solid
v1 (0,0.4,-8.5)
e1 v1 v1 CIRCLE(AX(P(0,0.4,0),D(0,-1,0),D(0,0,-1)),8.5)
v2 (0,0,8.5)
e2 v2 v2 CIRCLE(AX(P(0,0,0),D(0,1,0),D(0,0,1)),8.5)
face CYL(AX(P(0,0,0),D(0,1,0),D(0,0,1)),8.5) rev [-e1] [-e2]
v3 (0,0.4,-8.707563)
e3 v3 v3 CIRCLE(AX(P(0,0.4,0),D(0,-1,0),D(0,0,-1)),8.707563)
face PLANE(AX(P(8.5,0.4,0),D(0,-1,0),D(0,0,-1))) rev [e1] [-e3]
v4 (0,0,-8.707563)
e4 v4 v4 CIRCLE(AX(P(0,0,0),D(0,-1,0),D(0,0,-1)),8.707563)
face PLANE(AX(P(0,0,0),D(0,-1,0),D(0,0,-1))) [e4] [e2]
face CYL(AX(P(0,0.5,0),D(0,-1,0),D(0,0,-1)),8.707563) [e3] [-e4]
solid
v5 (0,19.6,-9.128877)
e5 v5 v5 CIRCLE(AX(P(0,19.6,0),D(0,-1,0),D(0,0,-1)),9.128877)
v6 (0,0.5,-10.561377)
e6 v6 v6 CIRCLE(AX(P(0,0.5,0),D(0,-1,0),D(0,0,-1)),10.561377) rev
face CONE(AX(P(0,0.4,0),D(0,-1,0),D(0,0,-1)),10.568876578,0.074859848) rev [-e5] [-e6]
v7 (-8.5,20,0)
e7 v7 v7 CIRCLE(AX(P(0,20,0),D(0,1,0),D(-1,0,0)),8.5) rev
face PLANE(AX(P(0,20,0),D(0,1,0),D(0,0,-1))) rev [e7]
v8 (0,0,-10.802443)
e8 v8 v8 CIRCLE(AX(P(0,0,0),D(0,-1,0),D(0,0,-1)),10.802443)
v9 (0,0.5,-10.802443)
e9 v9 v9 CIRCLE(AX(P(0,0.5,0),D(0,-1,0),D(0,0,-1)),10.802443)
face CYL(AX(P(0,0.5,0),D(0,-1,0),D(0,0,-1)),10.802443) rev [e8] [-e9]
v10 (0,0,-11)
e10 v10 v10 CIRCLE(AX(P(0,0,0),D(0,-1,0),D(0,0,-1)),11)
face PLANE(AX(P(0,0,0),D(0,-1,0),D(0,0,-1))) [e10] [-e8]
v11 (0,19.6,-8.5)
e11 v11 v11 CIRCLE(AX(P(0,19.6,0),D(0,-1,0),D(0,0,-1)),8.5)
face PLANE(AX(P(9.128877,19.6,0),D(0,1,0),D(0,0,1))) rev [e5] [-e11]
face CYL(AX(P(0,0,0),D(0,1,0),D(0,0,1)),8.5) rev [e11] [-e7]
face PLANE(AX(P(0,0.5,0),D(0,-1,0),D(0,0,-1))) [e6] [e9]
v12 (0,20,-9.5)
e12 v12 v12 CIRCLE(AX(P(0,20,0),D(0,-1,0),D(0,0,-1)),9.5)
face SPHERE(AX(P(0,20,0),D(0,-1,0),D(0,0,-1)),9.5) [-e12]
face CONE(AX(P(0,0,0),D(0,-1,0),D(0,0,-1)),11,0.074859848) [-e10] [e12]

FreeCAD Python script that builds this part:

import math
import FreeCAD as App
import Part
import Sketcher
from FreeCAD import Vector

doc = App.newDocument("Part")
params = doc.addObject("Spreadsheet::Sheet", "Params")
for row, (alias, value) in enumerate([
    ("sketch1_width", "11 mm"),
    ("sketch1_height", "20 mm"),
    ("sketch1_width2", "9.5 mm"),
    ("revolution_angle", "360 deg"),
    ("sketch2_diameter", "17 mm"),
    ("pocket1_length", "20 mm"),
    ("sketch3_height", "19.2 mm"),
    ("groove_angle", "360 deg"),
    ("pocket2_length", "0.5 mm"),
    ("sketch5_radius", "9.5 mm"),
    ("revolution2_angle", "180 deg"),
], start=1):
    params.set(f"A{row}", alias)
    params.set(f"B{row}", "=" + value)
    params.setAlias(f"B{row}", alias)

body = doc.addObject("PartDesign::Body", "Body")
body.AllowCompound = True

sketch1 = body.newObject("Sketcher::SketchObject", "Sketch")
sketch1.AttachmentSupport = (doc.getObject("XY_Plane"), [""])
sketch1.MapMode = "FlatFace"
sketch1.addGeometry([
    Part.LineSegment(Vector(0, 0, 0), Vector(11, 0, 0)),
    Part.LineSegment(Vector(11, 0, 0), Vector(10, 20, 0)),
    Part.LineSegment(Vector(10, 20, 0), Vector(0, 20, 0)),
    Part.LineSegment(Vector(0, 20, 0), Vector(0, 0, 0)),
], False)
sketch1.addConstraint([
    Sketcher.Constraint("Coincident", 0, 2, 1, 1),
    Sketcher.Constraint("Coincident", 1, 2, 2, 1),
    Sketcher.Constraint("Coincident", 2, 2, 3, 1),
    Sketcher.Constraint("Coincident", 3, 2, 0, 1),
    Sketcher.Constraint("Horizontal", 0),
    Sketcher.Constraint("Horizontal", 2),
    Sketcher.Constraint("Vertical", 3),
    Sketcher.Constraint("Coincident", 3, 2, -1, 1),
    Sketcher.Constraint("DistanceX", 0, 1, 0, 2, 11.0),
    Sketcher.Constraint("DistanceY", 3, 2, 3, 1, 20.0),
    Sketcher.Constraint("DistanceX", 2, 2, 2, 1, 9.5),
])
sketch1.setExpression("Constraints[8]", "Params.sketch1_width")
sketch1.setExpression("Constraints[9]", "Params.sketch1_height")
sketch1.setExpression("Constraints[10]", "Params.sketch1_width2")
revolution = body.newObject("PartDesign::Revolution", "Revolution")
revolution.Profile = sketch1
revolution.ReferenceAxis = (sketch1, ["V_Axis"])
revolution.setExpression("Angle", "Params.revolution_angle")

sketch2 = body.newObject("Sketcher::SketchObject", "Sketch001")
sketch2.AttachmentSupport = (doc.getObject("XZ_Plane"), [""])
sketch2.MapMode = "FlatFace"
sketch2.AttachmentOffset = App.Placement(Vector(0, 0, -20), App.Rotation())
sketch2.addGeometry(Part.Circle(Vector(0, 0, 0), Vector(0, 0, 1), 8), False)
sketch2.addConstraint([
    Sketcher.Constraint("Coincident", 0, 3, -1, 1),
    Sketcher.Constraint("Diameter", 0, 17.0),
])
sketch2.setExpression("Constraints[1]", "Params.sketch2_diameter")
pocket1 = body.newObject("PartDesign::Pocket", "Pocket")
pocket1.Profile = sketch2
pocket1.setExpression("Length", "Params.pocket1_length")
pocket1.Reversed = True

sketch3 = body.newObject("Sketcher::SketchObject", "Sketch002")
sketch3.AttachmentSupport = (doc.getObject("XY_Plane"), [""])
sketch3.MapMode = "FlatFace"
sketch3.addGeometry([
    Part.LineSegment(Vector(8.5, 19.6, 0), Vector(8.5, 0.4, 0)),
    Part.LineSegment(Vector(8.5, 0.4, 0), Vector(10.6, 0.4, 0)),
    Part.LineSegment(Vector(10.6, 0.4, 0), Vector(9.1, 19.6, 0)),
    Part.LineSegment(Vector(9.1, 19.6, 0), Vector(8.5, 19.6, 0)),
], False)
sketch3.addConstraint([
    Sketcher.Constraint("Coincident", 0, 2, 1, 1),
    Sketcher.Constraint("Coincident", 1, 2, 2, 1),
    Sketcher.Constraint("Coincident", 2, 2, 3, 1),
    Sketcher.Constraint("Coincident", 3, 2, 0, 1),
    Sketcher.Constraint("Vertical", 0),
    Sketcher.Constraint("Horizontal", 1),
    Sketcher.Constraint("Horizontal", 3),
    Sketcher.Constraint("DistanceY", 0, 2, 0, 1, 19.2),
    Sketcher.Constraint("DistanceX", -1, 1, 0, 2, 8.5),
    Sketcher.Constraint("DistanceY", -1, 1, 0, 2, 0.4),
    Sketcher.Constraint("DistanceX", 2, 2, 1, 2, 1.44),
    Sketcher.Constraint("DistanceX", 1, 1, 1, 2, 2.068877),
])
sketch3.setExpression("Constraints[7]", "Params.sketch3_height")
groove = body.newObject("PartDesign::Groove", "Groove")
groove.Profile = sketch3
groove.ReferenceAxis = (sketch3, ["V_Axis"])
groove.setExpression("Angle", "Params.groove_angle")

sketch4 = body.newObject("Sketcher::SketchObject", "Sketch003")
sketch4.AttachmentSupport = (doc.getObject("XZ_Plane"), [""])
sketch4.MapMode = "FlatFace"
sketch4.addGeometry([
    Part.Circle(Vector(0, 0, 0), Vector(0, 0, 1), 11),
    Part.Circle(Vector(0, 0, 0), Vector(0, 0, 1), 9),
], False)
sketch4.addConstraint([
    Sketcher.Constraint("Coincident", 0, 3, -1, 1),
    Sketcher.Constraint("Coincident", 1, 3, -1, 1),
    Sketcher.Constraint("Diameter", 0, 21.604886),
    Sketcher.Constraint("Diameter", 1, 17.415125),
])
pocket2 = body.newObject("PartDesign::Pocket", "Pocket001")
pocket2.Profile = sketch4
pocket2.setExpression("Length", "Params.pocket2_length")

sketch5 = body.newObject("Sketcher::SketchObject", "Sketch004")
sketch5.AttachmentSupport = (doc.getObject("XZ_Plane"), [""])
sketch5.MapMode = "FlatFace"
sketch5.AttachmentOffset = App.Placement(Vector(0, 0, -20), App.Rotation())
sketch5.addGeometry([
    Part.LineSegment(Vector(0, -10, 0), Vector(0, 10, 0)),
    Part.ArcOfCircle(Part.Circle(Vector(0, 0, 0), Vector(0, 0, 1), 10), math.radians(-90), math.radians(90)),
], False)
sketch5.addConstraint([
    Sketcher.Constraint("Coincident", 0, 1, 1, 1),
    Sketcher.Constraint("Coincident", 1, 2, 0, 2),
    Sketcher.Constraint("Vertical", 0),
    Sketcher.Constraint("Coincident", 1, 3, -1, 1),
    Sketcher.Constraint("PointOnObject", 0, 1, -2),
    Sketcher.Constraint("Radius", 1, 9.5),
])
sketch5.setExpression("Constraints[5]", "Params.sketch5_radius")
revolution2 = body.newObject("PartDesign::Revolution", "Revolution001")
revolution2.Profile = sketch5
revolution2.ReferenceAxis = (sketch5, ["V_Axis"])
revolution2.setExpression("Angle", "Params.revolution2_angle")

doc.recompute()
